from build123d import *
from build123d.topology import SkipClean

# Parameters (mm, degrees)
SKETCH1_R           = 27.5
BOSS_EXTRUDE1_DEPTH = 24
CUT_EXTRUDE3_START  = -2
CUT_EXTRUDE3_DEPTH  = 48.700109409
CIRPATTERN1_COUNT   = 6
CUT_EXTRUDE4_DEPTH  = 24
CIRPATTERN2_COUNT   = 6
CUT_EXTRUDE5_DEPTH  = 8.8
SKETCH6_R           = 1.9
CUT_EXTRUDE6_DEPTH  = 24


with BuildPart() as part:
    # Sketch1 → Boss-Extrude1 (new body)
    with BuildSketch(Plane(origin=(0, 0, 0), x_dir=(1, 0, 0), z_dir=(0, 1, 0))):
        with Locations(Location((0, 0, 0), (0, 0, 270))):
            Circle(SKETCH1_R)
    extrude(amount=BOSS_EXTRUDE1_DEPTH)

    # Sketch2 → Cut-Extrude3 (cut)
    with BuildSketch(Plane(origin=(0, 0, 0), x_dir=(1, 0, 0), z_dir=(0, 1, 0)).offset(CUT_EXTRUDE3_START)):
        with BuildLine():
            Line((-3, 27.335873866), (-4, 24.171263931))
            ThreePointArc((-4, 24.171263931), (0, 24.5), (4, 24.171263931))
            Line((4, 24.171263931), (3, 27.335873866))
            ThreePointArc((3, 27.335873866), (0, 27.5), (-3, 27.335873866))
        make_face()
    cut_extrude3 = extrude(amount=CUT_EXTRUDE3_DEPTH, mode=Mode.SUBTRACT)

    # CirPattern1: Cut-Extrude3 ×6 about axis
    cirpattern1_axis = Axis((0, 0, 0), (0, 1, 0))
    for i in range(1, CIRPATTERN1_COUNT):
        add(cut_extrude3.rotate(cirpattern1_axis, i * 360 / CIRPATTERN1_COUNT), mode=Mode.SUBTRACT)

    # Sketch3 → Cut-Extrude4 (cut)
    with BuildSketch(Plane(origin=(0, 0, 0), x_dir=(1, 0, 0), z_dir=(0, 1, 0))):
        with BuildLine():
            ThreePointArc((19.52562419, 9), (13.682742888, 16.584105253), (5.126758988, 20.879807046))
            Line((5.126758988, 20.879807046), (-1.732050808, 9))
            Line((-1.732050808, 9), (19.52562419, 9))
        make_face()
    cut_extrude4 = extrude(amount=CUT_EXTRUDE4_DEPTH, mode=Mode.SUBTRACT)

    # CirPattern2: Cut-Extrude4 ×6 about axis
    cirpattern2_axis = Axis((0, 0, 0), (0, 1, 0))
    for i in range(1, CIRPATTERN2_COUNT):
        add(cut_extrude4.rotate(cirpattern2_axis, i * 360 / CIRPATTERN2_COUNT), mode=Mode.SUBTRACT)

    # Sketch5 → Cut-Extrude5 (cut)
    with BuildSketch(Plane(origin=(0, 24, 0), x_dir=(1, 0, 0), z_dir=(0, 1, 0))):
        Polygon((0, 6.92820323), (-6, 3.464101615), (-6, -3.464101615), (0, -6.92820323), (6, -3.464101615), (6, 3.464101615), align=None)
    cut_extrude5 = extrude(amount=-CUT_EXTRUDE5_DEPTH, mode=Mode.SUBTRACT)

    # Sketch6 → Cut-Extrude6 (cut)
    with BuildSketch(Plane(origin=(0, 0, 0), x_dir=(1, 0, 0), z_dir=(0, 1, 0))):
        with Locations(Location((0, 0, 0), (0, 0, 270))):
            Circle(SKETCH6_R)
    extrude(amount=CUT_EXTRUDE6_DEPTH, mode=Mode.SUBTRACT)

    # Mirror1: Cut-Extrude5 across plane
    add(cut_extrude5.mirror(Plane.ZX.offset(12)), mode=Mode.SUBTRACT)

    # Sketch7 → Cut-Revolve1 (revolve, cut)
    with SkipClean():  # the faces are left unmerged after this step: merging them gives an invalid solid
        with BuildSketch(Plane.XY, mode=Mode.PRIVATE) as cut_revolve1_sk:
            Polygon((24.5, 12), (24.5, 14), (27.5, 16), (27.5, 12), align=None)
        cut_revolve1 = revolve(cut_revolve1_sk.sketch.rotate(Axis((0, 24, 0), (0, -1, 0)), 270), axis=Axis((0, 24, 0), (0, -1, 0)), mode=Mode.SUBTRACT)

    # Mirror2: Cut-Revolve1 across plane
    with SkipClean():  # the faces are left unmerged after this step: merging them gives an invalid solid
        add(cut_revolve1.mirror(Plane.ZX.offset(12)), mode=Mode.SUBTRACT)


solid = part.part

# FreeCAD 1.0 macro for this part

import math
import FreeCAD as App
import Part
import Sketcher

V = App.Vector
Q = App.Units.Quantity


def add_polygon(sketch, points):
    """Adds a closed chain of lines whose ends are joined by coincident constraints."""
    first, n = sketch.GeometryCount, len(points)
    for a, b in zip(points, points[1:] + points[:1]):
        sketch.addGeometry(Part.LineSegment(App.Vector(*a, 0), App.Vector(*b, 0)), False)
    for i in range(n):
        sketch.addConstraint(Sketcher.Constraint("Coincident", first + i, 2, first + (i + 1) % n, 1))

doc = App.newDocument("Part")
body = doc.addObject("PartDesign::Body", "Body")

# Sketch on XZ plane
sketch1 = body.newObject("Sketcher::SketchObject", "Sketch")
sketch1.AttachmentSupport = (doc.getObject("XZ_Plane"), [""])
sketch1.MapMode = "FlatFace"
sketch1.addGeometry(Part.Circle(V(0, 0, 0), V(0, 0, 1), 28), False)
sketch1.addConstraint(Sketcher.Constraint("Coincident", 0, 3, -1, 1))
sketch1.addConstraint(Sketcher.Constraint("Diameter", 0, 55.0))
pad1 = body.newObject("PartDesign::Pad", "Pad")
pad1.Profile = sketch1
pad1.Length = 24
pad1.Reversed = True

# Sketch on XZ plane
sketch2 = body.newObject("Sketcher::SketchObject", "Sketch001")
sketch2.AttachmentSupport = (doc.getObject("XZ_Plane"), [""])
sketch2.MapMode = "FlatFace"
sketch2.AttachmentOffset = App.Placement(V(0, 0, 2), App.Rotation())
sketch2.addGeometry(Part.LineSegment(V(-3, -27.3, 0), V(-4, -24.2, 0)), False)
sketch2.addGeometry(Part.ArcOfCircle(Part.Circle(V(0, 0, 0), V(0, 0, 1), 24.5), math.radians(-99.4), math.radians(-80.6)), False)
sketch2.addGeometry(Part.LineSegment(V(4, -24.2, 0), V(3, -27.3, 0)), False)
sketch2.addGeometry(Part.ArcOfCircle(Part.Circle(V(0, 0, 0), V(0, 0, 1), 27.5), math.radians(-96.26), math.radians(-83.74)), False)
sketch2.addConstraint(Sketcher.Constraint("Coincident", 0, 2, 1, 1))
sketch2.addConstraint(Sketcher.Constraint("Coincident", 1, 2, 2, 1))
sketch2.addConstraint(Sketcher.Constraint("Coincident", 2, 2, 3, 2))
sketch2.addConstraint(Sketcher.Constraint("Coincident", 3, 1, 0, 1))
sketch2.addConstraint(Sketcher.Constraint("Coincident", 1, 3, -1, 1))
sketch2.addConstraint(Sketcher.Constraint("Coincident", 3, 3, -1, 1))
sketch2.addConstraint(Sketcher.Constraint("Horizontal", 0, 2, 1, 2))
sketch2.addConstraint(Sketcher.Constraint("Horizontal", 2, 2, 3, 1))
sketch2.addConstraint(Sketcher.Constraint("Radius", 1, 24.5))
sketch2.addConstraint(Sketcher.Constraint("Radius", 3, 27.5))
sketch2.addConstraint(Sketcher.Constraint("DistanceX", 0, 2, -1, 1, 4.0))
sketch2.addConstraint(Sketcher.Constraint("DistanceX", -1, 1, 2, 2, 3.0))
pocket1 = body.newObject("PartDesign::Pocket", "Pocket")
pocket1.Profile = sketch2
pocket1.Length = 48.700109
doc.recompute()

polarpattern = body.newObject("PartDesign::PolarPattern", "PolarPattern")
polarpattern.Originals = [pocket1]
polarpattern.Axis = (doc.getObject("Y_Axis"), [""])
polarpattern.Angle = 360
polarpattern.Occurrences = 6
body.Tip = polarpattern

# Sketch on XZ plane
sketch3 = body.newObject("Sketcher::SketchObject", "Sketch002")
sketch3.AttachmentSupport = (doc.getObject("XZ_Plane"), [""])
sketch3.MapMode = "FlatFace"
sketch3.addGeometry(Part.ArcOfCircle(Part.Circle(V(0, 0, 0), V(0, 0, 1), 22), math.radians(-76), math.radians(-25)), False)
sketch3.addGeometry(Part.LineSegment(V(5, -21, 0), V(-2, -9, 0)), False)
sketch3.addGeometry(Part.LineSegment(V(-2, -9, 0), V(20, -9, 0)), False)
sketch3.addConstraint(Sketcher.Constraint("Coincident", 0, 1, 1, 1))
sketch3.addConstraint(Sketcher.Constraint("Coincident", 1, 2, 2, 1))
sketch3.addConstraint(Sketcher.Constraint("Coincident", 2, 2, 0, 2))
sketch3.addConstraint(Sketcher.Constraint("Horizontal", 2))
sketch3.addConstraint(Sketcher.Constraint("Coincident", 0, 3, -1, 1))
sketch3.addConstraint(Sketcher.Constraint("Radius", 0, 21.5))
sketch3.addConstraint(Sketcher.Constraint("Angle", 1, Q("120 deg")))
sketch3.addConstraint(Sketcher.Constraint("DistanceY", 1, 2, -1, 1, 9.0))
sketch3.addConstraint(Sketcher.Constraint("Distance", 1, 13.71762))
pocket2 = body.newObject("PartDesign::Pocket", "Pocket001")
pocket2.Profile = sketch3
pocket2.Length = 24
doc.recompute()

polarpattern2 = body.newObject("PartDesign::PolarPattern", "PolarPattern001")
polarpattern2.Originals = [pocket2]
polarpattern2.Axis = (doc.getObject("Y_Axis"), [""])
polarpattern2.Angle = 360
polarpattern2.Occurrences = 6
body.Tip = polarpattern2

# Sketch on XZ plane
sketch4 = body.newObject("Sketcher::SketchObject", "Sketch003")
sketch4.AttachmentSupport = (doc.getObject("XZ_Plane"), [""])
sketch4.MapMode = "FlatFace"
sketch4.AttachmentOffset = App.Placement(V(0, 0, -24), App.Rotation())
add_polygon(sketch4, [(0, -7), (-6, -3), (-6, 3), (0, 7), (6, 3), (6, -3)])  # lines 0-5
sketch4.addConstraint(Sketcher.Constraint("Vertical", 1))
sketch4.addConstraint(Sketcher.Constraint("Vertical", 4))
sketch4.addConstraint(Sketcher.Constraint("Symmetric", 0, 2, 3, 2, -1, 1))
sketch4.addConstraint(Sketcher.Constraint("Symmetric", 2, 2, 5, 2, -1, 1))
sketch4.addConstraint(Sketcher.Constraint("PointOnObject", 2, 2, -2))
sketch4.addConstraint(Sketcher.Constraint("Parallel", 2, 5))
sketch4.addConstraint(Sketcher.Constraint("Horizontal", 1, 2, 3, 2))
sketch4.addConstraint(Sketcher.Constraint("Angle", 0, Q("150 deg")))
sketch4.addConstraint(Sketcher.Constraint("DistanceX", 0, 2, -1, 1, 6.0))
sketch4.addConstraint(Sketcher.Constraint("DistanceY", 0, 2, -1, 1, 3.464102))
pocket3 = body.newObject("PartDesign::Pocket", "Pocket002")
pocket3.Profile = sketch4
pocket3.Length = 8.8
pocket3.Reversed = True

# Sketch on XZ plane
sketch5 = body.newObject("Sketcher::SketchObject", "Sketch004")
sketch5.AttachmentSupport = (doc.getObject("XZ_Plane"), [""])
sketch5.MapMode = "FlatFace"
sketch5.addGeometry(Part.Circle(V(0, 0, 0), V(0, 0, 1), 1.9), False)
sketch5.addConstraint(Sketcher.Constraint("Coincident", 0, 3, -1, 1))
sketch5.addConstraint(Sketcher.Constraint("Diameter", 0, 3.8))
pocket4 = body.newObject("PartDesign::Pocket", "Pocket003")
pocket4.Profile = sketch5
pocket4.Length = 24
doc.recompute()

datumplane = body.newObject("PartDesign::Plane", "DatumPlane")
datumplane.AttachmentSupport = (doc.getObject("XZ_Plane"), [""])
datumplane.MapMode = "FlatFace"
datumplane.AttachmentOffset = App.Placement(V(0, 0, -12), App.Rotation())
mirrored = body.newObject("PartDesign::Mirrored", "Mirrored")
mirrored.Originals = [pocket3]
mirrored.MirrorPlane = (datumplane, [""])
body.Tip = mirrored

# Sketch on XY plane
sketch6 = body.newObject("Sketcher::SketchObject", "Sketch005")
sketch6.AttachmentSupport = (doc.getObject("XY_Plane"), [""])
sketch6.MapMode = "FlatFace"
add_polygon(sketch6, [(24.5, 14), (24.5, 12), (27.5, 12), (27.5, 16)])  # lines 0-3
sketch6.addConstraint(Sketcher.Constraint("Vertical", 0))
sketch6.addConstraint(Sketcher.Constraint("Horizontal", 1))
sketch6.addConstraint(Sketcher.Constraint("Vertical", 2))
sketch6.addConstraint(Sketcher.Constraint("DistanceX", 1, 1, 1, 2, 3.0))
sketch6.addConstraint(Sketcher.Constraint("DistanceY", 0, 2, 0, 1, 2.0))
sketch6.addConstraint(Sketcher.Constraint("DistanceY", 2, 1, 2, 2, 4.0))
sketch6.addConstraint(Sketcher.Constraint("DistanceY", -1, 1, 0, 2, 12.0))
sketch6.addConstraint(Sketcher.Constraint("DistanceX", -1, 1, 0, 2, 24.5))
groove = body.newObject("PartDesign::Groove", "Groove")
groove.Profile = sketch6
groove.ReferenceAxis = (sketch6, ["V_Axis"])
groove.Angle = 360
doc.recompute()

datumplane2 = body.newObject("PartDesign::Plane", "DatumPlane001")
datumplane2.AttachmentSupport = (doc.getObject("XZ_Plane"), [""])
datumplane2.MapMode = "FlatFace"
datumplane2.AttachmentOffset = App.Placement(V(0, 0, -12), App.Rotation())
mirrored2 = body.newObject("PartDesign::Mirrored", "Mirrored001")
mirrored2.Originals = [groove]
mirrored2.MirrorPlane = (datumplane2, [""])
body.Tip = mirrored2

doc.recompute()
